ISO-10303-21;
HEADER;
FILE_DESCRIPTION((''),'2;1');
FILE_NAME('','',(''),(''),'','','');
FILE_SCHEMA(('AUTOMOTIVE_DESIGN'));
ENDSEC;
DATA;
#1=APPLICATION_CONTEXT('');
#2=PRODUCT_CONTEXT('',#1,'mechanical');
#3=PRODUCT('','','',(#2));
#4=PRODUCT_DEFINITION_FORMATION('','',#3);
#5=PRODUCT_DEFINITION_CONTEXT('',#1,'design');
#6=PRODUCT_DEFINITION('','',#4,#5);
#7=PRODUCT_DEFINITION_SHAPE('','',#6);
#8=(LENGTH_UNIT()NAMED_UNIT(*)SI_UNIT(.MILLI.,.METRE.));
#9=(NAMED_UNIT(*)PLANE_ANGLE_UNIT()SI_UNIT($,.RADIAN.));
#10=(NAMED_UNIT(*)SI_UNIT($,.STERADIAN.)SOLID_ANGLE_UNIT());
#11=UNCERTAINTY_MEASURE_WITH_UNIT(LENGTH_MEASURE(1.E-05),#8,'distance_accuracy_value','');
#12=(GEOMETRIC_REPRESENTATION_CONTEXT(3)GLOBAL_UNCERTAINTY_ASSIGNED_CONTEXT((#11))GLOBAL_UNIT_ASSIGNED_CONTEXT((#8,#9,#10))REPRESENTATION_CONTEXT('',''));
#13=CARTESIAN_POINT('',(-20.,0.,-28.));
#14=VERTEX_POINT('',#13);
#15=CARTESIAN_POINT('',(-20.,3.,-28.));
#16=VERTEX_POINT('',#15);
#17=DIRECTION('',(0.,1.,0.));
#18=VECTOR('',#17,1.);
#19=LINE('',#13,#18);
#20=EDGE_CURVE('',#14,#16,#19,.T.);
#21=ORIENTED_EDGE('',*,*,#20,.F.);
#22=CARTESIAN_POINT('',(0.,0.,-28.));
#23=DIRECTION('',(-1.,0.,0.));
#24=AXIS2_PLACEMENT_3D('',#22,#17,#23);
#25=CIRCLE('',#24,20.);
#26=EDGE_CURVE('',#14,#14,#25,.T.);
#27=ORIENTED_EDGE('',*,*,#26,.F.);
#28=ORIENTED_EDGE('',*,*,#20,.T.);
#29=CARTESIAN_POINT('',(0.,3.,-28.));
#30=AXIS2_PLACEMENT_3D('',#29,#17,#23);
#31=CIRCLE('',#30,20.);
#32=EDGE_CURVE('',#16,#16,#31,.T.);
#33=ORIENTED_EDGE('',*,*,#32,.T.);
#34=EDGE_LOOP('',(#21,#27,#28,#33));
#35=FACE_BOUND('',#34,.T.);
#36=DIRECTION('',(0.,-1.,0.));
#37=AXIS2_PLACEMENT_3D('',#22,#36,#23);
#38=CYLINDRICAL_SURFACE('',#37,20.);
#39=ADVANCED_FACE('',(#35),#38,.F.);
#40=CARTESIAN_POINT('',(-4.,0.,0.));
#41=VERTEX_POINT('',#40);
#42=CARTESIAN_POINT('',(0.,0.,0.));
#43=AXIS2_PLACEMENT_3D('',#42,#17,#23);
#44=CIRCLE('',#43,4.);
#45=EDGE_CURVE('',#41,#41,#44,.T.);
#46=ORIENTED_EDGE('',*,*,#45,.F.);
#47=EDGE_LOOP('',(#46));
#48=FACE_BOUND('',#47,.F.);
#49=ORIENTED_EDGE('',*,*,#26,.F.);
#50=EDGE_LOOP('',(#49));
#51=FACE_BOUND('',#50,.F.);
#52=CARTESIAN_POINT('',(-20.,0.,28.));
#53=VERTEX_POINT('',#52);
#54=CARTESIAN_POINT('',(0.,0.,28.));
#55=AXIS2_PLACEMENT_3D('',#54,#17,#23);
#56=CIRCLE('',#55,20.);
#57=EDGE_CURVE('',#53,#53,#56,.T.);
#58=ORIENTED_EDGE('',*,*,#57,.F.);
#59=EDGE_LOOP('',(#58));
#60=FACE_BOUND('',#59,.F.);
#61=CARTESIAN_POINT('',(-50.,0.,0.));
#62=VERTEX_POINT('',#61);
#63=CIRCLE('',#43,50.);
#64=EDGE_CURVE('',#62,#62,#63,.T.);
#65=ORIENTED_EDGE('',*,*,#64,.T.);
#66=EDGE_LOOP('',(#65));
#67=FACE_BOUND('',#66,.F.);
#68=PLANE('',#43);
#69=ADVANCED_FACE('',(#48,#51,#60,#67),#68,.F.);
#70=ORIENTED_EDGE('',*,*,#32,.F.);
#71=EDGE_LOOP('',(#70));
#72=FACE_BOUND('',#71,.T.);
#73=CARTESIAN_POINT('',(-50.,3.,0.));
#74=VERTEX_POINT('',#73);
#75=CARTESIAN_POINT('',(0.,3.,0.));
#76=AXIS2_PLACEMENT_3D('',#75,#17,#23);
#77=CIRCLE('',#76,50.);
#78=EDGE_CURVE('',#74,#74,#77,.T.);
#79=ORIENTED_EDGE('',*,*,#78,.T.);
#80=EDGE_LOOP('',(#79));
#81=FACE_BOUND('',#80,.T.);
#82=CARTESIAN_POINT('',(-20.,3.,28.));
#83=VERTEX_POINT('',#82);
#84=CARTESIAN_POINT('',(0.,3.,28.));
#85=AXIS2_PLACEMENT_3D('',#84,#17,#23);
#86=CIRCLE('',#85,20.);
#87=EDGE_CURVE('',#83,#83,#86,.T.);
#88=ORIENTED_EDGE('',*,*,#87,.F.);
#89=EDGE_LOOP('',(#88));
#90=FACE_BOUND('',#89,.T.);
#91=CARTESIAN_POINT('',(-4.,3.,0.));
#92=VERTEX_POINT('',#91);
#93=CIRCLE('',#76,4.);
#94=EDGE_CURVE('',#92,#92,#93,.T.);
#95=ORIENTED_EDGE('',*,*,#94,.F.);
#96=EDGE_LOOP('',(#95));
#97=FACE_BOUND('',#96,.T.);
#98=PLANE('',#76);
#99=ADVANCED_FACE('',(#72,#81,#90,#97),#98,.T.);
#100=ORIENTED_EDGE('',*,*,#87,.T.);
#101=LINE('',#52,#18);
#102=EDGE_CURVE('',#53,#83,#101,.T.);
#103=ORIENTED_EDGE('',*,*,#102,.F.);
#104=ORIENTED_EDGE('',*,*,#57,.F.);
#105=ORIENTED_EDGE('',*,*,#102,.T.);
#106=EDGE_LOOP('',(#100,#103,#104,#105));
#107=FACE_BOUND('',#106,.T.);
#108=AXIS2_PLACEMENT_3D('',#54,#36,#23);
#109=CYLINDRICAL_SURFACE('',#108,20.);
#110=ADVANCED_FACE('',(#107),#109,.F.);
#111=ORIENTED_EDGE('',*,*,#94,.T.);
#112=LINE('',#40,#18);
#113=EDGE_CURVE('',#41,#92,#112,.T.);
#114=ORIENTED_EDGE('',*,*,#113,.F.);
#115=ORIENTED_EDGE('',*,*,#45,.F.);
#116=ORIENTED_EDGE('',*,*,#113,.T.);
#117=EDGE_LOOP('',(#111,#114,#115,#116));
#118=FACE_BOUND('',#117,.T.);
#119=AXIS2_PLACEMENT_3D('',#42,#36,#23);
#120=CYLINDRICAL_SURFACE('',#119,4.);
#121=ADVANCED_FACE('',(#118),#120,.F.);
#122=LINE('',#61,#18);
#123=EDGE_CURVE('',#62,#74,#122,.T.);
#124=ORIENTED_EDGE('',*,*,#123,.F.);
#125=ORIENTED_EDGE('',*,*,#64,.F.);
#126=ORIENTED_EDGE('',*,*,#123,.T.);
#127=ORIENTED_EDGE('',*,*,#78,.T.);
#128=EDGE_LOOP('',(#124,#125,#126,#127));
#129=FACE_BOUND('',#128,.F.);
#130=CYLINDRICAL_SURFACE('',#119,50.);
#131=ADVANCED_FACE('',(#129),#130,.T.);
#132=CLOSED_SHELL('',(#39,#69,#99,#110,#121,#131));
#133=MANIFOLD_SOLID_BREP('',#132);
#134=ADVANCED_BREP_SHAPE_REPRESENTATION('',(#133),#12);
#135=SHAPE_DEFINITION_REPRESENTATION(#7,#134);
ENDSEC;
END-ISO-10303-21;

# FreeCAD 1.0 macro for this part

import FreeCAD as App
import Part
import Sketcher

doc = App.newDocument("Part")
body = doc.addObject("PartDesign::Body", "Body")

# Sketch on XZ plane
sketch1 = body.newObject("Sketcher::SketchObject", "Sketch")
sketch1.AttachmentSupport = (doc.getObject("XZ_Plane"), [""])
sketch1.MapMode = "FlatFace"
sketch1.addGeometry(Part.Circle(App.Vector(0, 0, 0), App.Vector(0, 0, 1), 50), False)
sketch1.addConstraint([
    Sketcher.Constraint("Coincident", 0, 3, -1, 1),
    Sketcher.Constraint("Diameter", 0, 100.0),
])
pad1 = body.newObject("PartDesign::Pad", "Pad")
pad1.Profile = sketch1
pad1.Length = 3
pad1.Reversed = True

# Sketch on XZ plane
sketch2 = body.newObject("Sketcher::SketchObject", "Sketch001")
sketch2.AttachmentSupport = (doc.getObject("XZ_Plane"), [""])
sketch2.MapMode = "FlatFace"
sketch2.addGeometry([
    Part.Circle(App.Vector(0, -28, 0), App.Vector(0, 0, 1), 20),
    Part.Circle(App.Vector(0, 0, 0), App.Vector(0, 0, 1), 4),
    Part.Circle(App.Vector(0, 28, 0), App.Vector(0, 0, 1), 20),
], False)
sketch2.addConstraint([
    Sketcher.Constraint("Coincident", 1, 3, -1, 1),
    Sketcher.Constraint("Equal", 0, 2),
    Sketcher.Constraint("Symmetric", 0, 3, 2, 3, -1, 1),
    Sketcher.Constraint("PointOnObject", 0, 3, -2),
    Sketcher.Constraint("Diameter", 0, 40.0),
    Sketcher.Constraint("Diameter", 1, 8.0),
    Sketcher.Constraint("DistanceY", 0, 3, -1, 1, 28.0),
])
pocket1 = body.newObject("PartDesign::Pocket", "Pocket")
pocket1.Profile = sketch2
pocket1.Length = 3

doc.recompute()
